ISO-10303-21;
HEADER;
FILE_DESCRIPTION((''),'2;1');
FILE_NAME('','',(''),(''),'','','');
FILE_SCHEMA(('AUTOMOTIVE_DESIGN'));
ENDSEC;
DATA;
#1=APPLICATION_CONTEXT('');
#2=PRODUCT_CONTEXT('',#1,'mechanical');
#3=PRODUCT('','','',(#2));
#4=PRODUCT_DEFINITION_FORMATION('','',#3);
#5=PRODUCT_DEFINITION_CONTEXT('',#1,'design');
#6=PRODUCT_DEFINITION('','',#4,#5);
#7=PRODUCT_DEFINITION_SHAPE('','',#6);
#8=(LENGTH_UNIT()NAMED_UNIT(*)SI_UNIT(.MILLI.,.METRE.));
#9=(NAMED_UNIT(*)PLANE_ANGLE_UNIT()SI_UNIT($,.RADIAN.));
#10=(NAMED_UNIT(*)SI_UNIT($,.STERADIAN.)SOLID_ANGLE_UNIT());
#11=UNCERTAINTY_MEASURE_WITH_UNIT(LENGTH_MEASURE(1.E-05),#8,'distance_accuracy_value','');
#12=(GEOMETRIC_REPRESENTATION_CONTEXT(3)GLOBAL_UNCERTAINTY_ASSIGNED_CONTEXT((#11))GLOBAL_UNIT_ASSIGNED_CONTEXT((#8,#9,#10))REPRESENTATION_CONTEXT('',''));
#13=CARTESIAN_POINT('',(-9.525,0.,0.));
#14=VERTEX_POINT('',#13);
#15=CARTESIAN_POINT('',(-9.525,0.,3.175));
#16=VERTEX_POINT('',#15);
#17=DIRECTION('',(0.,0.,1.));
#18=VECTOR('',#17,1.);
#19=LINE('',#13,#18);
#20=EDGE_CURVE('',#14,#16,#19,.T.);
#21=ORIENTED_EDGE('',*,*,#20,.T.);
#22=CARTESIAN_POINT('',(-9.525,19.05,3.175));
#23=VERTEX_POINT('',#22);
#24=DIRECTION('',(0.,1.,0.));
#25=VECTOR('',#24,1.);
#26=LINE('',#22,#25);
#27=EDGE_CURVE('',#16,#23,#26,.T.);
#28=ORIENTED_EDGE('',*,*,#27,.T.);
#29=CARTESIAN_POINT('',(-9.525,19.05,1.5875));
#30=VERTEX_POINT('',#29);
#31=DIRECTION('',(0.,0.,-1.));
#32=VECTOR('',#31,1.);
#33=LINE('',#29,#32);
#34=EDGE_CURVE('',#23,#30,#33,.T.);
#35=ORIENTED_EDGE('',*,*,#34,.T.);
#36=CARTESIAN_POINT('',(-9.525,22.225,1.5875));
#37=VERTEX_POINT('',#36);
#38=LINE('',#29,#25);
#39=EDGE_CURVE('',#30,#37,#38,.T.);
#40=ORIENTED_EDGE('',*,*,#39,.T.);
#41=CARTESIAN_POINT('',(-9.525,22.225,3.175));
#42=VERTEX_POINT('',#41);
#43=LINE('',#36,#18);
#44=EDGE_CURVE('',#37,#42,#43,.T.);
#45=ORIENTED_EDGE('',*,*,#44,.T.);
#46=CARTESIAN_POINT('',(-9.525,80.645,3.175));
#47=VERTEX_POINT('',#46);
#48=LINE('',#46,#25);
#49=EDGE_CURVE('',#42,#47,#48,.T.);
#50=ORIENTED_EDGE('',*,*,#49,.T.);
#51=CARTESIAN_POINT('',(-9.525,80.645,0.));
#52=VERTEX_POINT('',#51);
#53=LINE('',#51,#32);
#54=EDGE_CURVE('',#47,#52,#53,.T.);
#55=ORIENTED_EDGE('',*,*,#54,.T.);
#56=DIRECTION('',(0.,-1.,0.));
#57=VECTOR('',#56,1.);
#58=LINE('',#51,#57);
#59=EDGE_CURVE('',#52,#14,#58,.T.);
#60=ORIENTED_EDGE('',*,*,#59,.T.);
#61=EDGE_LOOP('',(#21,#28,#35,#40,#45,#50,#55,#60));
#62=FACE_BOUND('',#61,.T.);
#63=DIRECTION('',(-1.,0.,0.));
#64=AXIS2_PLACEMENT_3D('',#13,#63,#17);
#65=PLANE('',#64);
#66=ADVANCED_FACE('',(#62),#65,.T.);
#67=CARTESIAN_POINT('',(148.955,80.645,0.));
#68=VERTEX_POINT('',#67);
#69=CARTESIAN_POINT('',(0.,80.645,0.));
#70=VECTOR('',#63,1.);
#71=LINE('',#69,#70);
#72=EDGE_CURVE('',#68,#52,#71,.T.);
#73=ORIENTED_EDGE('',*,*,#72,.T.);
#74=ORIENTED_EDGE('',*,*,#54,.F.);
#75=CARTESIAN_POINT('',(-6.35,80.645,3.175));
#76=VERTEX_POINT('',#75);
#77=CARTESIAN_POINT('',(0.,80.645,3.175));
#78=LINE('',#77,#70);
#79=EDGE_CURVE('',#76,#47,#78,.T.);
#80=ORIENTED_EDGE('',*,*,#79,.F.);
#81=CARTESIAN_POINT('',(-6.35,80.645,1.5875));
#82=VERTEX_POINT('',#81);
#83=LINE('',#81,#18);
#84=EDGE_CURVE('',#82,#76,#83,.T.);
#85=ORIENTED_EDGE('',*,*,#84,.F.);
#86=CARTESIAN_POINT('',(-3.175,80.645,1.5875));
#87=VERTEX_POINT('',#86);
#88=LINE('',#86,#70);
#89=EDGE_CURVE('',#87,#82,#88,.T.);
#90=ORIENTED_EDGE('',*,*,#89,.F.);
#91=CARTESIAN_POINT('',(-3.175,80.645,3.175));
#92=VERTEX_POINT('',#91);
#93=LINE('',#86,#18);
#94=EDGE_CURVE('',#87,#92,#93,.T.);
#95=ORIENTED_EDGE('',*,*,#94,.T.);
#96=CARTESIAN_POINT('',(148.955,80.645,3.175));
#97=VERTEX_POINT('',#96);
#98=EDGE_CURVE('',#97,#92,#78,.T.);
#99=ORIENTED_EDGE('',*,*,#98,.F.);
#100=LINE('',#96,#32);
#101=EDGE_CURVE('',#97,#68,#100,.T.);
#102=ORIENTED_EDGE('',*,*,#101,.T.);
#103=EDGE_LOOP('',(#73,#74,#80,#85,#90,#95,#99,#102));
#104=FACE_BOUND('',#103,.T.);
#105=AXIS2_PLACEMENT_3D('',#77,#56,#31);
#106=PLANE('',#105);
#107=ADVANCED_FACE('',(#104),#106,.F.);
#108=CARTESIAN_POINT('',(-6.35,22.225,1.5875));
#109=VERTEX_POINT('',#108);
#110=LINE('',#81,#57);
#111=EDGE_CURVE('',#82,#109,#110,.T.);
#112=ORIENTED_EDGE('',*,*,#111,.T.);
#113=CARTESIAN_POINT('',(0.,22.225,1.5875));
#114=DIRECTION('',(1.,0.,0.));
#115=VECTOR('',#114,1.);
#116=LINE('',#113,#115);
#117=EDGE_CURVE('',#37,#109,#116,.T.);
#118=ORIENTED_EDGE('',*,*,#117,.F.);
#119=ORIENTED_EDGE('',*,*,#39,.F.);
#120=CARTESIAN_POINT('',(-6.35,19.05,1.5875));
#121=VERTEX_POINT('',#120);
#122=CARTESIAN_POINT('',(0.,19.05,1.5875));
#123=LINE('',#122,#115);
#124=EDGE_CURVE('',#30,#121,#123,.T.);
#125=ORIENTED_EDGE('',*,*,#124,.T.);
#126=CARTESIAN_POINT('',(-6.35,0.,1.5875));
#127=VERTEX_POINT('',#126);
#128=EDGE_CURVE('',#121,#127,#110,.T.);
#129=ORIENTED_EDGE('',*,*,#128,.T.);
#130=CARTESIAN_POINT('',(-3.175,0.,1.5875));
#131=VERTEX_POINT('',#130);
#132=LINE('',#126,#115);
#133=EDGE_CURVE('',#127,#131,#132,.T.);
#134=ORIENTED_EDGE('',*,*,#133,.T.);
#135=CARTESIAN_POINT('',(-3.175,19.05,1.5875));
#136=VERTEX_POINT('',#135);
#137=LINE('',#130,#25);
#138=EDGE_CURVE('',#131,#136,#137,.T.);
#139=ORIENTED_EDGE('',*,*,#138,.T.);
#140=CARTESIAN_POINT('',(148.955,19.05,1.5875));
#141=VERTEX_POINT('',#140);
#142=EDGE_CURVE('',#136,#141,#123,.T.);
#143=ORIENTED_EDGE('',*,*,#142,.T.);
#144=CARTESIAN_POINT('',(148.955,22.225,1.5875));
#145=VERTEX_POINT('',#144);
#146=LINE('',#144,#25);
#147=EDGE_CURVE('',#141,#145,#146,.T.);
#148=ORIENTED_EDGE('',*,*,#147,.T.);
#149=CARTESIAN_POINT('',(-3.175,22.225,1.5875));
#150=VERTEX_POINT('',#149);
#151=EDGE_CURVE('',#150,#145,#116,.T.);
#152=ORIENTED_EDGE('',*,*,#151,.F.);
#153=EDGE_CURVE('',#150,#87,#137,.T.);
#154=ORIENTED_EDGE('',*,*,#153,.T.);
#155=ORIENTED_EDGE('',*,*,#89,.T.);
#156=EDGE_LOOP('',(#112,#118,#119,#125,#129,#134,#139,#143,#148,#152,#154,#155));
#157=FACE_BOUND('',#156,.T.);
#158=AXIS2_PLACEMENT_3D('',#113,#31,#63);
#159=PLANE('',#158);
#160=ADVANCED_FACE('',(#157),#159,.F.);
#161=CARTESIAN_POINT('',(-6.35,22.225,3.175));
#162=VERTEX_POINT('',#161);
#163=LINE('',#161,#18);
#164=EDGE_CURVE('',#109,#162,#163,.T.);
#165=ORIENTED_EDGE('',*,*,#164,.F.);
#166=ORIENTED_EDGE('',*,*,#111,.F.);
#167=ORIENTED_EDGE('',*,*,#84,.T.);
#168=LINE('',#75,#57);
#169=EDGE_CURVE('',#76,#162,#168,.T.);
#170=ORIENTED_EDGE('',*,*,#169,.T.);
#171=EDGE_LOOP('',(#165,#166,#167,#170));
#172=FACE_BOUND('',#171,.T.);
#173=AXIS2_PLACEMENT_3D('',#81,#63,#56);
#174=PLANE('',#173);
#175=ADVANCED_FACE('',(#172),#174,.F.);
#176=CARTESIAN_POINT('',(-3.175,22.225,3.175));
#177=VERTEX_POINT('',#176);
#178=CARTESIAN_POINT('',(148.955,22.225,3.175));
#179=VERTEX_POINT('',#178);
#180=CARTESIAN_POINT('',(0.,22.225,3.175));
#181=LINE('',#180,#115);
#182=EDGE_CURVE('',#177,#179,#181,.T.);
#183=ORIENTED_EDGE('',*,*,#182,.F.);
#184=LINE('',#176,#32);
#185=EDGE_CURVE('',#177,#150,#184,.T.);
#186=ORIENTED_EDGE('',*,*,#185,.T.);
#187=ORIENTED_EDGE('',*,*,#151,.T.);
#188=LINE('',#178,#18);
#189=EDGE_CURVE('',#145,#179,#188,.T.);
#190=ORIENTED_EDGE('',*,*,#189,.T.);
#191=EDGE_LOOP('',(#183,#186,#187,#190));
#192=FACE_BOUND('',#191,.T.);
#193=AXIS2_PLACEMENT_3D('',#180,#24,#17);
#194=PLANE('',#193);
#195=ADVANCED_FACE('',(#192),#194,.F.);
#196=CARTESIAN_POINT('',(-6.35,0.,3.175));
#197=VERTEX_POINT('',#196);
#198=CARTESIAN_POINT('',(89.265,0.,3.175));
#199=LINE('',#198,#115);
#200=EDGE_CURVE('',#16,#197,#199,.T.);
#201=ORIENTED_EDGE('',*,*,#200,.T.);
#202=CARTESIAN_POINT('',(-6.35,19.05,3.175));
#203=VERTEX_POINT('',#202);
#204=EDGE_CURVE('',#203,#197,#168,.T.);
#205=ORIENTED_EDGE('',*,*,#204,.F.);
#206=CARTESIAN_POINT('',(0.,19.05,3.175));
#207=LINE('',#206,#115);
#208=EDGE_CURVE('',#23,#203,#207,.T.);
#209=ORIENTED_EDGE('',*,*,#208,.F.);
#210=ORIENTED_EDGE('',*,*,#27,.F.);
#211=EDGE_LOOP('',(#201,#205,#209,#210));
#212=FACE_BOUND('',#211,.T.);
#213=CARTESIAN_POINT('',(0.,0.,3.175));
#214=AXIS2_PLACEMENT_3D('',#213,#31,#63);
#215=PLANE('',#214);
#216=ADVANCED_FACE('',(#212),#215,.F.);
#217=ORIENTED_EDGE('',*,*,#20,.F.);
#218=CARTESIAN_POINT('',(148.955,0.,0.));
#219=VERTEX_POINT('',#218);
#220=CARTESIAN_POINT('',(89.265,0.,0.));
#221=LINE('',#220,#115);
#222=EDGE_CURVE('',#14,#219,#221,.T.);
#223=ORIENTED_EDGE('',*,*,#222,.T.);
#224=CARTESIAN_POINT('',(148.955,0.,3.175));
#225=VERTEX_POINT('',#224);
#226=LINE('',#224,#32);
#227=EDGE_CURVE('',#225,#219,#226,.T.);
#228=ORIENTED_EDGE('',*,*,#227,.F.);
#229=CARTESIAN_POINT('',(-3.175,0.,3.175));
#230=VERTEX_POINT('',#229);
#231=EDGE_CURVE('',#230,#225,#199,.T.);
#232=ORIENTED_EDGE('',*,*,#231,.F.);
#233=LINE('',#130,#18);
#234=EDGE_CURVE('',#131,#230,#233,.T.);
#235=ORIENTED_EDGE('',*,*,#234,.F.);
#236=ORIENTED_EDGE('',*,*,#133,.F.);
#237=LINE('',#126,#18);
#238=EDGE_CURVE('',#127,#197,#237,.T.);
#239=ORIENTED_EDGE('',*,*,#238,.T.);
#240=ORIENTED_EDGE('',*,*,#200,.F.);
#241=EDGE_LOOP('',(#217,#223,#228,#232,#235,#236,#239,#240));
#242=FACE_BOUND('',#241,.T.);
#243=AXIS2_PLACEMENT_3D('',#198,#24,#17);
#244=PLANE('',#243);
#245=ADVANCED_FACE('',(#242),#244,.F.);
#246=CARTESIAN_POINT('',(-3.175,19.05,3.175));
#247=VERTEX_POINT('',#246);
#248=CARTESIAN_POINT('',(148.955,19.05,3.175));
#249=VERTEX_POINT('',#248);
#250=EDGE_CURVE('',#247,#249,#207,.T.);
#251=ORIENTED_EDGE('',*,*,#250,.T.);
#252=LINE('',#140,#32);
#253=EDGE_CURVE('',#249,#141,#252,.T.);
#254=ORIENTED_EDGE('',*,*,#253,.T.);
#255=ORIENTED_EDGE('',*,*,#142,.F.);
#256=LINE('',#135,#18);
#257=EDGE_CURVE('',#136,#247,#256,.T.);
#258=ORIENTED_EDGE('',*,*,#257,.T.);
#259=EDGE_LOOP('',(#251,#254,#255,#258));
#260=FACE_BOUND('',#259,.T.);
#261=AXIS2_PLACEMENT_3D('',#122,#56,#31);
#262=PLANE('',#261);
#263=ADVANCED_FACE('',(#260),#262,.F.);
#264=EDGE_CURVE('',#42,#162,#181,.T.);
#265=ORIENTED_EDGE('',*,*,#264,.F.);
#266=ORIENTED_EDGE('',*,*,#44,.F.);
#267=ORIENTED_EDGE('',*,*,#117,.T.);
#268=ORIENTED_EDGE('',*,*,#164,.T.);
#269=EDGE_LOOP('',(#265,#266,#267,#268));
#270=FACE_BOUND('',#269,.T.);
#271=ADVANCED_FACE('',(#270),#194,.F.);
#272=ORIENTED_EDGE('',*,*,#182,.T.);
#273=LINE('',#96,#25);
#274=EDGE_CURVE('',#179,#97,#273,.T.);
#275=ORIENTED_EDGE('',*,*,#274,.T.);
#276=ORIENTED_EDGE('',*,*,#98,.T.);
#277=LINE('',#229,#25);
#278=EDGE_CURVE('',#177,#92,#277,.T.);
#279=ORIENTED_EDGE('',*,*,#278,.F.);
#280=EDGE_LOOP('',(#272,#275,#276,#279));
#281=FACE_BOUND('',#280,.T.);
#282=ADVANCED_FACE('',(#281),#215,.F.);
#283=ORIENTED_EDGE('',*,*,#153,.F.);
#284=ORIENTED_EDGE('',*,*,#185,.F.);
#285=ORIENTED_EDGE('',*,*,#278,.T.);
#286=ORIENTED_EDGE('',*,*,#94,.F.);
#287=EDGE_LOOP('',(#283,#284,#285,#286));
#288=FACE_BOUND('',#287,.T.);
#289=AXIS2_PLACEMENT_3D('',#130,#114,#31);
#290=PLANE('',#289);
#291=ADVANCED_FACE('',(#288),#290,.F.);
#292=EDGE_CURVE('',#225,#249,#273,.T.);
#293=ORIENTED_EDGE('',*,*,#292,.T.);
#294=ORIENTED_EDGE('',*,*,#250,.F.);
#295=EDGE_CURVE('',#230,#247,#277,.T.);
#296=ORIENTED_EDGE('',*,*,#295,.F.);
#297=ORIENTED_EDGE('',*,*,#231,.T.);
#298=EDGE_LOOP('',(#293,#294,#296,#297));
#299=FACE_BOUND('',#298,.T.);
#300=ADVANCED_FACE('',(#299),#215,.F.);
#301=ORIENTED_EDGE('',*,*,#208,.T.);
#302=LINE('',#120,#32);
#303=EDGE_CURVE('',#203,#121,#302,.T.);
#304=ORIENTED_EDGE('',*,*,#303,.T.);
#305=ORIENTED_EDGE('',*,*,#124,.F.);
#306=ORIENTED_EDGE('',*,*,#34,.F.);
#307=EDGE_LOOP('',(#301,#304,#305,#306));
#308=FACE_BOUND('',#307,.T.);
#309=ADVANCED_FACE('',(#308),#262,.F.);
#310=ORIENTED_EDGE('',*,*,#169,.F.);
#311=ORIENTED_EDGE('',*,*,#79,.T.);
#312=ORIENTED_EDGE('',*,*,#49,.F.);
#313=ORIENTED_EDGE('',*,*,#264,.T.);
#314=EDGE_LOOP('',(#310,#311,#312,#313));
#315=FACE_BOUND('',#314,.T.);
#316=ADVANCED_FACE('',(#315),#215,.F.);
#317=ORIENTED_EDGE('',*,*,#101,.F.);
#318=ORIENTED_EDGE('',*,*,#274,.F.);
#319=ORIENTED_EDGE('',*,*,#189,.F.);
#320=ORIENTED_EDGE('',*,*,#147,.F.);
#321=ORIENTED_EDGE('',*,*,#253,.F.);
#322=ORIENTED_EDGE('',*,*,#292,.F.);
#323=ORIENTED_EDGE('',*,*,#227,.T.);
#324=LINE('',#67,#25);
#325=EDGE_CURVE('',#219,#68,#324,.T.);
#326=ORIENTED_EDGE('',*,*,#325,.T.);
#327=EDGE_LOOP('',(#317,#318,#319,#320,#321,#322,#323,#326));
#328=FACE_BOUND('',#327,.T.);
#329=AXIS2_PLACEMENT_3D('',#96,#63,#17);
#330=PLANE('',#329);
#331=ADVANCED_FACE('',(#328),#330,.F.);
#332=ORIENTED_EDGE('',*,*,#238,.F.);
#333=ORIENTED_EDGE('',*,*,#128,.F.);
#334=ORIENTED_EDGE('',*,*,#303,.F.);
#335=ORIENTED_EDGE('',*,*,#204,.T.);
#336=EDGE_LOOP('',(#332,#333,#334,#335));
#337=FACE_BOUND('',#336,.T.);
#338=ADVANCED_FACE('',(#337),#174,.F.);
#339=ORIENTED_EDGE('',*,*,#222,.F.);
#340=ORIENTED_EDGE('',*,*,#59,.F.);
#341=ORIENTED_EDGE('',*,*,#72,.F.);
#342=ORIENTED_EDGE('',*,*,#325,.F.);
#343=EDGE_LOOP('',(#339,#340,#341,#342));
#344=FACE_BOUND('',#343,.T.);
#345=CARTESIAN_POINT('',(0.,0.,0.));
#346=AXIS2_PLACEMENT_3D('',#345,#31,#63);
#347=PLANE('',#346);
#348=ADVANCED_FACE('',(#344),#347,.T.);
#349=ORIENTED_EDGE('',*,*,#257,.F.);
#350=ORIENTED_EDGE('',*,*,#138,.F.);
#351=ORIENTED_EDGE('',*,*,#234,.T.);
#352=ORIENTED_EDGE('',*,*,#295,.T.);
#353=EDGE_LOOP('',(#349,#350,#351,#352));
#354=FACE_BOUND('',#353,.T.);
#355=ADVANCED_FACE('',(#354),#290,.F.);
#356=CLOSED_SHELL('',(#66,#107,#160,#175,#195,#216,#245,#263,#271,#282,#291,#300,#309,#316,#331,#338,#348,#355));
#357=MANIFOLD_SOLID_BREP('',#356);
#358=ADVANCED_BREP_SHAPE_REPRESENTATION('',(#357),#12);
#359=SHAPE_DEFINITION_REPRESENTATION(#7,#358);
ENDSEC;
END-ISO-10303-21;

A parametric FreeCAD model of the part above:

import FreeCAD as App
import Part
import Sketcher

V = App.Vector
Q = App.Units.Quantity

doc = App.newDocument("Part")
body = doc.addObject("PartDesign::Body", "Body")

# Sketch on XY plane
sketch1 = body.newObject("Sketcher::SketchObject", "Sketch")
sketch1.AttachmentSupport = (doc.getObject("XY_Plane"), [""])
sketch1.MapMode = "FlatFace"
sketch1.addGeometry(Part.LineSegment(V(149, 0, 0), V(149, 81, 0)), False)
sketch1.addGeometry(Part.LineSegment(V(149, 81, 0), V(0, 81, 0)), False)
sketch1.addGeometry(Part.LineSegment(V(0, 81, 0), V(0, 0, 0)), False)
sketch1.addGeometry(Part.LineSegment(V(0, 0, 0), V(149, 0, 0)), False)
sketch1.addConstraint(Sketcher.Constraint("Coincident", 0, 2, 1, 1))
sketch1.addConstraint(Sketcher.Constraint("Coincident", 1, 2, 2, 1))
sketch1.addConstraint(Sketcher.Constraint("Coincident", 2, 2, 3, 1))
sketch1.addConstraint(Sketcher.Constraint("Coincident", 3, 2, 0, 1))
sketch1.addConstraint(Sketcher.Constraint("Vertical", 0))
sketch1.addConstraint(Sketcher.Constraint("Horizontal", 1))
sketch1.addConstraint(Sketcher.Constraint("Vertical", 2))
sketch1.addConstraint(Sketcher.Constraint("Horizontal", 3))
sketch1.addConstraint(Sketcher.Constraint("Coincident", 2, 2, -1, 1))
sketch1.addConstraint(Sketcher.Constraint("DistanceY", 0, 1, 0, 2, Q("3.175 in")))
sketch1.addConstraint(Sketcher.Constraint("DistanceX", 1, 2, 1, 1, 148.955))
pad1 = body.newObject("PartDesign::Pad", "Pad")
pad1.Profile = sketch1
pad1.Length = Q("0.125 in")

# Sketch on YZ plane
sketch2 = body.newObject("Sketcher::SketchObject", "Sketch001")
sketch2.AttachmentSupport = (doc.getObject("YZ_Plane"), [""])
sketch2.MapMode = "FlatFace"
sketch2.AttachmentOffset = App.Placement(V(0, 0, 148.955), App.Rotation())
sketch2.addGeometry(Part.LineSegment(V(22.2, 3.2, 0), V(19.1, 3.2, 0)), False)
sketch2.addGeometry(Part.LineSegment(V(19.1, 3.2, 0), V(19.1, 1.6, 0)), False)
sketch2.addGeometry(Part.LineSegment(V(19.1, 1.6, 0), V(22.2, 1.6, 0)), False)
sketch2.addGeometry(Part.LineSegment(V(22.2, 1.6, 0), V(22.2, 3.2, 0)), False)
sketch2.addConstraint(Sketcher.Constraint("Coincident", 0, 2, 1, 1))
sketch2.addConstraint(Sketcher.Constraint("Coincident", 1, 2, 2, 1))
sketch2.addConstraint(Sketcher.Constraint("Coincident", 2, 2, 3, 1))
sketch2.addConstraint(Sketcher.Constraint("Coincident", 3, 2, 0, 1))
sketch2.addConstraint(Sketcher.Constraint("Horizontal", 0))
sketch2.addConstraint(Sketcher.Constraint("Vertical", 1))
sketch2.addConstraint(Sketcher.Constraint("Horizontal", 2))
sketch2.addConstraint(Sketcher.Constraint("Vertical", 3))
sketch2.addConstraint(Sketcher.Constraint("DistanceX", 0, 2, 0, 1, Q("0.125 in")))
sketch2.addConstraint(Sketcher.Constraint("DistanceY", 1, 2, 1, 1, Q("0.0625 in")))
sketch2.addConstraint(Sketcher.Constraint("DistanceX", -1, 1, 0, 2, Q("0.75 in")))
sketch2.addConstraint(Sketcher.Constraint("DistanceY", -1, 1, 0, 2, Q("0.125 in")))
pocket1 = body.newObject("PartDesign::Pocket", "Pocket")
pocket1.Profile = sketch2
pocket1.Type = "ThroughAll"

# Sketch on YZ plane
sketch3 = body.newObject("Sketcher::SketchObject", "Sketch002")
sketch3.AttachmentSupport = (doc.getObject("YZ_Plane"), [""])
sketch3.MapMode = "FlatFace"
sketch3.addGeometry(Part.LineSegment(V(0, 3.2, 0), V(19.1, 3.2, 0)), False)
sketch3.addGeometry(Part.LineSegment(V(19.1, 3.2, 0), V(19.1, 1.6, 0)), False)
sketch3.addGeometry(Part.LineSegment(V(19.1, 1.6, 0), V(22.2, 1.6, 0)), False)
sketch3.addGeometry(Part.LineSegment(V(22.2, 1.6, 0), V(22.2, 3.2, 0)), False)
sketch3.addGeometry(Part.LineSegment(V(22.2, 3.2, 0), V(80.6, 3.2, 0)), False)
sketch3.addGeometry(Part.LineSegment(V(80.6, 3.2, 0), V(80.6, 0, 0)), False)
sketch3.addGeometry(Part.LineSegment(V(80.6, 0, 0), V(0, 0, 0)), False)
sketch3.addGeometry(Part.LineSegment(V(0, 0, 0), V(0, 3.2, 0)), False)
sketch3.addConstraint(Sketcher.Constraint("Coincident", 0, 2, 1, 1))
sketch3.addConstraint(Sketcher.Constraint("Coincident", 1, 2, 2, 1))
sketch3.addConstraint(Sketcher.Constraint("Coincident", 2, 2, 3, 1))
sketch3.addConstraint(Sketcher.Constraint("Coincident", 3, 2, 4, 1))
sketch3.addConstraint(Sketcher.Constraint("Coincident", 4, 2, 5, 1))
sketch3.addConstraint(Sketcher.Constraint("Coincident", 5, 2, 6, 1))
sketch3.addConstraint(Sketcher.Constraint("Coincident", 6, 2, 7, 1))
sketch3.addConstraint(Sketcher.Constraint("Coincident", 7, 2, 0, 1))
sketch3.addConstraint(Sketcher.Constraint("Horizontal", 0))
sketch3.addConstraint(Sketcher.Constraint("Vertical", 1))
sketch3.addConstraint(Sketcher.Constraint("Horizontal", 2))
sketch3.addConstraint(Sketcher.Constraint("Vertical", 3))
sketch3.addConstraint(Sketcher.Constraint("Horizontal", 4))
sketch3.addConstraint(Sketcher.Constraint("Vertical", 5))
sketch3.addConstraint(Sketcher.Constraint("Horizontal", 6))
sketch3.addConstraint(Sketcher.Constraint("Vertical", 7))
sketch3.addConstraint(Sketcher.Constraint("Coincident", 6, 2, -1, 1))
sketch3.addConstraint(Sketcher.Constraint("Horizontal", 0, 2, 3, 2))
sketch3.addConstraint(Sketcher.Constraint("Equal", 2, 5))
sketch3.addConstraint(Sketcher.Constraint("DistanceX", 4, 1, 4, 2, Q("2.3 in")))
sketch3.addConstraint(Sketcher.Constraint("DistanceX", 0, 1, 0, 2, Q("0.75 in")))
sketch3.addConstraint(Sketcher.Constraint("DistanceX", 2, 1, 2, 2, Q("0.125 in")))
sketch3.addConstraint(Sketcher.Constraint("DistanceY", 1, 2, 1, 1, Q("0.0625 in")))
pad2 = body.newObject("PartDesign::Pad", "Pad001")
pad2.Profile = sketch3
pad2.Length = Q("0.375 in")
pad2.Reversed = True

# Sketch on XY plane
sketch4 = body.newObject("Sketcher::SketchObject", "Sketch003")
sketch4.AttachmentSupport = (doc.getObject("XY_Plane"), [""])
sketch4.MapMode = "FlatFace"
sketch4.AttachmentOffset = App.Placement(V(0, 0, 0.125 * 25.4), App.Rotation())
sketch4.addGeometry(Part.LineSegment(V(-6.3, 80.6, 0), V(-6.3, 0, 0)), False)
sketch4.addGeometry(Part.LineSegment(V(-6.3, 0, 0), V(-3.2, 0, 0)), False)
sketch4.addGeometry(Part.LineSegment(V(-3.2, 0, 0), V(-3.2, 80.6, 0)), False)
sketch4.addGeometry(Part.LineSegment(V(-3.2, 80.6, 0), V(-6.3, 80.6, 0)), False)
sketch4.addConstraint(Sketcher.Constraint("Coincident", 0, 2, 1, 1))
sketch4.addConstraint(Sketcher.Constraint("Coincident", 1, 2, 2, 1))
sketch4.addConstraint(Sketcher.Constraint("Coincident", 2, 2, 3, 1))
sketch4.addConstraint(Sketcher.Constraint("Coincident", 3, 2, 0, 1))
sketch4.addConstraint(Sketcher.Constraint("Vertical", 0))
sketch4.addConstraint(Sketcher.Constraint("Horizontal", 1))
sketch4.addConstraint(Sketcher.Constraint("Vertical", 2))
sketch4.addConstraint(Sketcher.Constraint("Horizontal", 3))
sketch4.addConstraint(Sketcher.Constraint("PointOnObject", 0, 2, -1))
sketch4.addConstraint(Sketcher.Constraint("DistanceX", 1, 1, 1, 2, Q("0.125 in")))
sketch4.addConstraint(Sketcher.Constraint("DistanceY", 0, 2, 0, 1, Q("3.175 in")))
sketch4.addConstraint(Sketcher.Constraint("DistanceX", 0, 2, -1, 1, Q("0.25 in")))
pocket2 = body.newObject("PartDesign::Pocket", "Pocket001")
pocket2.Profile = sketch4
pocket2.Length = Q("0.0625 in")

doc.recompute()
